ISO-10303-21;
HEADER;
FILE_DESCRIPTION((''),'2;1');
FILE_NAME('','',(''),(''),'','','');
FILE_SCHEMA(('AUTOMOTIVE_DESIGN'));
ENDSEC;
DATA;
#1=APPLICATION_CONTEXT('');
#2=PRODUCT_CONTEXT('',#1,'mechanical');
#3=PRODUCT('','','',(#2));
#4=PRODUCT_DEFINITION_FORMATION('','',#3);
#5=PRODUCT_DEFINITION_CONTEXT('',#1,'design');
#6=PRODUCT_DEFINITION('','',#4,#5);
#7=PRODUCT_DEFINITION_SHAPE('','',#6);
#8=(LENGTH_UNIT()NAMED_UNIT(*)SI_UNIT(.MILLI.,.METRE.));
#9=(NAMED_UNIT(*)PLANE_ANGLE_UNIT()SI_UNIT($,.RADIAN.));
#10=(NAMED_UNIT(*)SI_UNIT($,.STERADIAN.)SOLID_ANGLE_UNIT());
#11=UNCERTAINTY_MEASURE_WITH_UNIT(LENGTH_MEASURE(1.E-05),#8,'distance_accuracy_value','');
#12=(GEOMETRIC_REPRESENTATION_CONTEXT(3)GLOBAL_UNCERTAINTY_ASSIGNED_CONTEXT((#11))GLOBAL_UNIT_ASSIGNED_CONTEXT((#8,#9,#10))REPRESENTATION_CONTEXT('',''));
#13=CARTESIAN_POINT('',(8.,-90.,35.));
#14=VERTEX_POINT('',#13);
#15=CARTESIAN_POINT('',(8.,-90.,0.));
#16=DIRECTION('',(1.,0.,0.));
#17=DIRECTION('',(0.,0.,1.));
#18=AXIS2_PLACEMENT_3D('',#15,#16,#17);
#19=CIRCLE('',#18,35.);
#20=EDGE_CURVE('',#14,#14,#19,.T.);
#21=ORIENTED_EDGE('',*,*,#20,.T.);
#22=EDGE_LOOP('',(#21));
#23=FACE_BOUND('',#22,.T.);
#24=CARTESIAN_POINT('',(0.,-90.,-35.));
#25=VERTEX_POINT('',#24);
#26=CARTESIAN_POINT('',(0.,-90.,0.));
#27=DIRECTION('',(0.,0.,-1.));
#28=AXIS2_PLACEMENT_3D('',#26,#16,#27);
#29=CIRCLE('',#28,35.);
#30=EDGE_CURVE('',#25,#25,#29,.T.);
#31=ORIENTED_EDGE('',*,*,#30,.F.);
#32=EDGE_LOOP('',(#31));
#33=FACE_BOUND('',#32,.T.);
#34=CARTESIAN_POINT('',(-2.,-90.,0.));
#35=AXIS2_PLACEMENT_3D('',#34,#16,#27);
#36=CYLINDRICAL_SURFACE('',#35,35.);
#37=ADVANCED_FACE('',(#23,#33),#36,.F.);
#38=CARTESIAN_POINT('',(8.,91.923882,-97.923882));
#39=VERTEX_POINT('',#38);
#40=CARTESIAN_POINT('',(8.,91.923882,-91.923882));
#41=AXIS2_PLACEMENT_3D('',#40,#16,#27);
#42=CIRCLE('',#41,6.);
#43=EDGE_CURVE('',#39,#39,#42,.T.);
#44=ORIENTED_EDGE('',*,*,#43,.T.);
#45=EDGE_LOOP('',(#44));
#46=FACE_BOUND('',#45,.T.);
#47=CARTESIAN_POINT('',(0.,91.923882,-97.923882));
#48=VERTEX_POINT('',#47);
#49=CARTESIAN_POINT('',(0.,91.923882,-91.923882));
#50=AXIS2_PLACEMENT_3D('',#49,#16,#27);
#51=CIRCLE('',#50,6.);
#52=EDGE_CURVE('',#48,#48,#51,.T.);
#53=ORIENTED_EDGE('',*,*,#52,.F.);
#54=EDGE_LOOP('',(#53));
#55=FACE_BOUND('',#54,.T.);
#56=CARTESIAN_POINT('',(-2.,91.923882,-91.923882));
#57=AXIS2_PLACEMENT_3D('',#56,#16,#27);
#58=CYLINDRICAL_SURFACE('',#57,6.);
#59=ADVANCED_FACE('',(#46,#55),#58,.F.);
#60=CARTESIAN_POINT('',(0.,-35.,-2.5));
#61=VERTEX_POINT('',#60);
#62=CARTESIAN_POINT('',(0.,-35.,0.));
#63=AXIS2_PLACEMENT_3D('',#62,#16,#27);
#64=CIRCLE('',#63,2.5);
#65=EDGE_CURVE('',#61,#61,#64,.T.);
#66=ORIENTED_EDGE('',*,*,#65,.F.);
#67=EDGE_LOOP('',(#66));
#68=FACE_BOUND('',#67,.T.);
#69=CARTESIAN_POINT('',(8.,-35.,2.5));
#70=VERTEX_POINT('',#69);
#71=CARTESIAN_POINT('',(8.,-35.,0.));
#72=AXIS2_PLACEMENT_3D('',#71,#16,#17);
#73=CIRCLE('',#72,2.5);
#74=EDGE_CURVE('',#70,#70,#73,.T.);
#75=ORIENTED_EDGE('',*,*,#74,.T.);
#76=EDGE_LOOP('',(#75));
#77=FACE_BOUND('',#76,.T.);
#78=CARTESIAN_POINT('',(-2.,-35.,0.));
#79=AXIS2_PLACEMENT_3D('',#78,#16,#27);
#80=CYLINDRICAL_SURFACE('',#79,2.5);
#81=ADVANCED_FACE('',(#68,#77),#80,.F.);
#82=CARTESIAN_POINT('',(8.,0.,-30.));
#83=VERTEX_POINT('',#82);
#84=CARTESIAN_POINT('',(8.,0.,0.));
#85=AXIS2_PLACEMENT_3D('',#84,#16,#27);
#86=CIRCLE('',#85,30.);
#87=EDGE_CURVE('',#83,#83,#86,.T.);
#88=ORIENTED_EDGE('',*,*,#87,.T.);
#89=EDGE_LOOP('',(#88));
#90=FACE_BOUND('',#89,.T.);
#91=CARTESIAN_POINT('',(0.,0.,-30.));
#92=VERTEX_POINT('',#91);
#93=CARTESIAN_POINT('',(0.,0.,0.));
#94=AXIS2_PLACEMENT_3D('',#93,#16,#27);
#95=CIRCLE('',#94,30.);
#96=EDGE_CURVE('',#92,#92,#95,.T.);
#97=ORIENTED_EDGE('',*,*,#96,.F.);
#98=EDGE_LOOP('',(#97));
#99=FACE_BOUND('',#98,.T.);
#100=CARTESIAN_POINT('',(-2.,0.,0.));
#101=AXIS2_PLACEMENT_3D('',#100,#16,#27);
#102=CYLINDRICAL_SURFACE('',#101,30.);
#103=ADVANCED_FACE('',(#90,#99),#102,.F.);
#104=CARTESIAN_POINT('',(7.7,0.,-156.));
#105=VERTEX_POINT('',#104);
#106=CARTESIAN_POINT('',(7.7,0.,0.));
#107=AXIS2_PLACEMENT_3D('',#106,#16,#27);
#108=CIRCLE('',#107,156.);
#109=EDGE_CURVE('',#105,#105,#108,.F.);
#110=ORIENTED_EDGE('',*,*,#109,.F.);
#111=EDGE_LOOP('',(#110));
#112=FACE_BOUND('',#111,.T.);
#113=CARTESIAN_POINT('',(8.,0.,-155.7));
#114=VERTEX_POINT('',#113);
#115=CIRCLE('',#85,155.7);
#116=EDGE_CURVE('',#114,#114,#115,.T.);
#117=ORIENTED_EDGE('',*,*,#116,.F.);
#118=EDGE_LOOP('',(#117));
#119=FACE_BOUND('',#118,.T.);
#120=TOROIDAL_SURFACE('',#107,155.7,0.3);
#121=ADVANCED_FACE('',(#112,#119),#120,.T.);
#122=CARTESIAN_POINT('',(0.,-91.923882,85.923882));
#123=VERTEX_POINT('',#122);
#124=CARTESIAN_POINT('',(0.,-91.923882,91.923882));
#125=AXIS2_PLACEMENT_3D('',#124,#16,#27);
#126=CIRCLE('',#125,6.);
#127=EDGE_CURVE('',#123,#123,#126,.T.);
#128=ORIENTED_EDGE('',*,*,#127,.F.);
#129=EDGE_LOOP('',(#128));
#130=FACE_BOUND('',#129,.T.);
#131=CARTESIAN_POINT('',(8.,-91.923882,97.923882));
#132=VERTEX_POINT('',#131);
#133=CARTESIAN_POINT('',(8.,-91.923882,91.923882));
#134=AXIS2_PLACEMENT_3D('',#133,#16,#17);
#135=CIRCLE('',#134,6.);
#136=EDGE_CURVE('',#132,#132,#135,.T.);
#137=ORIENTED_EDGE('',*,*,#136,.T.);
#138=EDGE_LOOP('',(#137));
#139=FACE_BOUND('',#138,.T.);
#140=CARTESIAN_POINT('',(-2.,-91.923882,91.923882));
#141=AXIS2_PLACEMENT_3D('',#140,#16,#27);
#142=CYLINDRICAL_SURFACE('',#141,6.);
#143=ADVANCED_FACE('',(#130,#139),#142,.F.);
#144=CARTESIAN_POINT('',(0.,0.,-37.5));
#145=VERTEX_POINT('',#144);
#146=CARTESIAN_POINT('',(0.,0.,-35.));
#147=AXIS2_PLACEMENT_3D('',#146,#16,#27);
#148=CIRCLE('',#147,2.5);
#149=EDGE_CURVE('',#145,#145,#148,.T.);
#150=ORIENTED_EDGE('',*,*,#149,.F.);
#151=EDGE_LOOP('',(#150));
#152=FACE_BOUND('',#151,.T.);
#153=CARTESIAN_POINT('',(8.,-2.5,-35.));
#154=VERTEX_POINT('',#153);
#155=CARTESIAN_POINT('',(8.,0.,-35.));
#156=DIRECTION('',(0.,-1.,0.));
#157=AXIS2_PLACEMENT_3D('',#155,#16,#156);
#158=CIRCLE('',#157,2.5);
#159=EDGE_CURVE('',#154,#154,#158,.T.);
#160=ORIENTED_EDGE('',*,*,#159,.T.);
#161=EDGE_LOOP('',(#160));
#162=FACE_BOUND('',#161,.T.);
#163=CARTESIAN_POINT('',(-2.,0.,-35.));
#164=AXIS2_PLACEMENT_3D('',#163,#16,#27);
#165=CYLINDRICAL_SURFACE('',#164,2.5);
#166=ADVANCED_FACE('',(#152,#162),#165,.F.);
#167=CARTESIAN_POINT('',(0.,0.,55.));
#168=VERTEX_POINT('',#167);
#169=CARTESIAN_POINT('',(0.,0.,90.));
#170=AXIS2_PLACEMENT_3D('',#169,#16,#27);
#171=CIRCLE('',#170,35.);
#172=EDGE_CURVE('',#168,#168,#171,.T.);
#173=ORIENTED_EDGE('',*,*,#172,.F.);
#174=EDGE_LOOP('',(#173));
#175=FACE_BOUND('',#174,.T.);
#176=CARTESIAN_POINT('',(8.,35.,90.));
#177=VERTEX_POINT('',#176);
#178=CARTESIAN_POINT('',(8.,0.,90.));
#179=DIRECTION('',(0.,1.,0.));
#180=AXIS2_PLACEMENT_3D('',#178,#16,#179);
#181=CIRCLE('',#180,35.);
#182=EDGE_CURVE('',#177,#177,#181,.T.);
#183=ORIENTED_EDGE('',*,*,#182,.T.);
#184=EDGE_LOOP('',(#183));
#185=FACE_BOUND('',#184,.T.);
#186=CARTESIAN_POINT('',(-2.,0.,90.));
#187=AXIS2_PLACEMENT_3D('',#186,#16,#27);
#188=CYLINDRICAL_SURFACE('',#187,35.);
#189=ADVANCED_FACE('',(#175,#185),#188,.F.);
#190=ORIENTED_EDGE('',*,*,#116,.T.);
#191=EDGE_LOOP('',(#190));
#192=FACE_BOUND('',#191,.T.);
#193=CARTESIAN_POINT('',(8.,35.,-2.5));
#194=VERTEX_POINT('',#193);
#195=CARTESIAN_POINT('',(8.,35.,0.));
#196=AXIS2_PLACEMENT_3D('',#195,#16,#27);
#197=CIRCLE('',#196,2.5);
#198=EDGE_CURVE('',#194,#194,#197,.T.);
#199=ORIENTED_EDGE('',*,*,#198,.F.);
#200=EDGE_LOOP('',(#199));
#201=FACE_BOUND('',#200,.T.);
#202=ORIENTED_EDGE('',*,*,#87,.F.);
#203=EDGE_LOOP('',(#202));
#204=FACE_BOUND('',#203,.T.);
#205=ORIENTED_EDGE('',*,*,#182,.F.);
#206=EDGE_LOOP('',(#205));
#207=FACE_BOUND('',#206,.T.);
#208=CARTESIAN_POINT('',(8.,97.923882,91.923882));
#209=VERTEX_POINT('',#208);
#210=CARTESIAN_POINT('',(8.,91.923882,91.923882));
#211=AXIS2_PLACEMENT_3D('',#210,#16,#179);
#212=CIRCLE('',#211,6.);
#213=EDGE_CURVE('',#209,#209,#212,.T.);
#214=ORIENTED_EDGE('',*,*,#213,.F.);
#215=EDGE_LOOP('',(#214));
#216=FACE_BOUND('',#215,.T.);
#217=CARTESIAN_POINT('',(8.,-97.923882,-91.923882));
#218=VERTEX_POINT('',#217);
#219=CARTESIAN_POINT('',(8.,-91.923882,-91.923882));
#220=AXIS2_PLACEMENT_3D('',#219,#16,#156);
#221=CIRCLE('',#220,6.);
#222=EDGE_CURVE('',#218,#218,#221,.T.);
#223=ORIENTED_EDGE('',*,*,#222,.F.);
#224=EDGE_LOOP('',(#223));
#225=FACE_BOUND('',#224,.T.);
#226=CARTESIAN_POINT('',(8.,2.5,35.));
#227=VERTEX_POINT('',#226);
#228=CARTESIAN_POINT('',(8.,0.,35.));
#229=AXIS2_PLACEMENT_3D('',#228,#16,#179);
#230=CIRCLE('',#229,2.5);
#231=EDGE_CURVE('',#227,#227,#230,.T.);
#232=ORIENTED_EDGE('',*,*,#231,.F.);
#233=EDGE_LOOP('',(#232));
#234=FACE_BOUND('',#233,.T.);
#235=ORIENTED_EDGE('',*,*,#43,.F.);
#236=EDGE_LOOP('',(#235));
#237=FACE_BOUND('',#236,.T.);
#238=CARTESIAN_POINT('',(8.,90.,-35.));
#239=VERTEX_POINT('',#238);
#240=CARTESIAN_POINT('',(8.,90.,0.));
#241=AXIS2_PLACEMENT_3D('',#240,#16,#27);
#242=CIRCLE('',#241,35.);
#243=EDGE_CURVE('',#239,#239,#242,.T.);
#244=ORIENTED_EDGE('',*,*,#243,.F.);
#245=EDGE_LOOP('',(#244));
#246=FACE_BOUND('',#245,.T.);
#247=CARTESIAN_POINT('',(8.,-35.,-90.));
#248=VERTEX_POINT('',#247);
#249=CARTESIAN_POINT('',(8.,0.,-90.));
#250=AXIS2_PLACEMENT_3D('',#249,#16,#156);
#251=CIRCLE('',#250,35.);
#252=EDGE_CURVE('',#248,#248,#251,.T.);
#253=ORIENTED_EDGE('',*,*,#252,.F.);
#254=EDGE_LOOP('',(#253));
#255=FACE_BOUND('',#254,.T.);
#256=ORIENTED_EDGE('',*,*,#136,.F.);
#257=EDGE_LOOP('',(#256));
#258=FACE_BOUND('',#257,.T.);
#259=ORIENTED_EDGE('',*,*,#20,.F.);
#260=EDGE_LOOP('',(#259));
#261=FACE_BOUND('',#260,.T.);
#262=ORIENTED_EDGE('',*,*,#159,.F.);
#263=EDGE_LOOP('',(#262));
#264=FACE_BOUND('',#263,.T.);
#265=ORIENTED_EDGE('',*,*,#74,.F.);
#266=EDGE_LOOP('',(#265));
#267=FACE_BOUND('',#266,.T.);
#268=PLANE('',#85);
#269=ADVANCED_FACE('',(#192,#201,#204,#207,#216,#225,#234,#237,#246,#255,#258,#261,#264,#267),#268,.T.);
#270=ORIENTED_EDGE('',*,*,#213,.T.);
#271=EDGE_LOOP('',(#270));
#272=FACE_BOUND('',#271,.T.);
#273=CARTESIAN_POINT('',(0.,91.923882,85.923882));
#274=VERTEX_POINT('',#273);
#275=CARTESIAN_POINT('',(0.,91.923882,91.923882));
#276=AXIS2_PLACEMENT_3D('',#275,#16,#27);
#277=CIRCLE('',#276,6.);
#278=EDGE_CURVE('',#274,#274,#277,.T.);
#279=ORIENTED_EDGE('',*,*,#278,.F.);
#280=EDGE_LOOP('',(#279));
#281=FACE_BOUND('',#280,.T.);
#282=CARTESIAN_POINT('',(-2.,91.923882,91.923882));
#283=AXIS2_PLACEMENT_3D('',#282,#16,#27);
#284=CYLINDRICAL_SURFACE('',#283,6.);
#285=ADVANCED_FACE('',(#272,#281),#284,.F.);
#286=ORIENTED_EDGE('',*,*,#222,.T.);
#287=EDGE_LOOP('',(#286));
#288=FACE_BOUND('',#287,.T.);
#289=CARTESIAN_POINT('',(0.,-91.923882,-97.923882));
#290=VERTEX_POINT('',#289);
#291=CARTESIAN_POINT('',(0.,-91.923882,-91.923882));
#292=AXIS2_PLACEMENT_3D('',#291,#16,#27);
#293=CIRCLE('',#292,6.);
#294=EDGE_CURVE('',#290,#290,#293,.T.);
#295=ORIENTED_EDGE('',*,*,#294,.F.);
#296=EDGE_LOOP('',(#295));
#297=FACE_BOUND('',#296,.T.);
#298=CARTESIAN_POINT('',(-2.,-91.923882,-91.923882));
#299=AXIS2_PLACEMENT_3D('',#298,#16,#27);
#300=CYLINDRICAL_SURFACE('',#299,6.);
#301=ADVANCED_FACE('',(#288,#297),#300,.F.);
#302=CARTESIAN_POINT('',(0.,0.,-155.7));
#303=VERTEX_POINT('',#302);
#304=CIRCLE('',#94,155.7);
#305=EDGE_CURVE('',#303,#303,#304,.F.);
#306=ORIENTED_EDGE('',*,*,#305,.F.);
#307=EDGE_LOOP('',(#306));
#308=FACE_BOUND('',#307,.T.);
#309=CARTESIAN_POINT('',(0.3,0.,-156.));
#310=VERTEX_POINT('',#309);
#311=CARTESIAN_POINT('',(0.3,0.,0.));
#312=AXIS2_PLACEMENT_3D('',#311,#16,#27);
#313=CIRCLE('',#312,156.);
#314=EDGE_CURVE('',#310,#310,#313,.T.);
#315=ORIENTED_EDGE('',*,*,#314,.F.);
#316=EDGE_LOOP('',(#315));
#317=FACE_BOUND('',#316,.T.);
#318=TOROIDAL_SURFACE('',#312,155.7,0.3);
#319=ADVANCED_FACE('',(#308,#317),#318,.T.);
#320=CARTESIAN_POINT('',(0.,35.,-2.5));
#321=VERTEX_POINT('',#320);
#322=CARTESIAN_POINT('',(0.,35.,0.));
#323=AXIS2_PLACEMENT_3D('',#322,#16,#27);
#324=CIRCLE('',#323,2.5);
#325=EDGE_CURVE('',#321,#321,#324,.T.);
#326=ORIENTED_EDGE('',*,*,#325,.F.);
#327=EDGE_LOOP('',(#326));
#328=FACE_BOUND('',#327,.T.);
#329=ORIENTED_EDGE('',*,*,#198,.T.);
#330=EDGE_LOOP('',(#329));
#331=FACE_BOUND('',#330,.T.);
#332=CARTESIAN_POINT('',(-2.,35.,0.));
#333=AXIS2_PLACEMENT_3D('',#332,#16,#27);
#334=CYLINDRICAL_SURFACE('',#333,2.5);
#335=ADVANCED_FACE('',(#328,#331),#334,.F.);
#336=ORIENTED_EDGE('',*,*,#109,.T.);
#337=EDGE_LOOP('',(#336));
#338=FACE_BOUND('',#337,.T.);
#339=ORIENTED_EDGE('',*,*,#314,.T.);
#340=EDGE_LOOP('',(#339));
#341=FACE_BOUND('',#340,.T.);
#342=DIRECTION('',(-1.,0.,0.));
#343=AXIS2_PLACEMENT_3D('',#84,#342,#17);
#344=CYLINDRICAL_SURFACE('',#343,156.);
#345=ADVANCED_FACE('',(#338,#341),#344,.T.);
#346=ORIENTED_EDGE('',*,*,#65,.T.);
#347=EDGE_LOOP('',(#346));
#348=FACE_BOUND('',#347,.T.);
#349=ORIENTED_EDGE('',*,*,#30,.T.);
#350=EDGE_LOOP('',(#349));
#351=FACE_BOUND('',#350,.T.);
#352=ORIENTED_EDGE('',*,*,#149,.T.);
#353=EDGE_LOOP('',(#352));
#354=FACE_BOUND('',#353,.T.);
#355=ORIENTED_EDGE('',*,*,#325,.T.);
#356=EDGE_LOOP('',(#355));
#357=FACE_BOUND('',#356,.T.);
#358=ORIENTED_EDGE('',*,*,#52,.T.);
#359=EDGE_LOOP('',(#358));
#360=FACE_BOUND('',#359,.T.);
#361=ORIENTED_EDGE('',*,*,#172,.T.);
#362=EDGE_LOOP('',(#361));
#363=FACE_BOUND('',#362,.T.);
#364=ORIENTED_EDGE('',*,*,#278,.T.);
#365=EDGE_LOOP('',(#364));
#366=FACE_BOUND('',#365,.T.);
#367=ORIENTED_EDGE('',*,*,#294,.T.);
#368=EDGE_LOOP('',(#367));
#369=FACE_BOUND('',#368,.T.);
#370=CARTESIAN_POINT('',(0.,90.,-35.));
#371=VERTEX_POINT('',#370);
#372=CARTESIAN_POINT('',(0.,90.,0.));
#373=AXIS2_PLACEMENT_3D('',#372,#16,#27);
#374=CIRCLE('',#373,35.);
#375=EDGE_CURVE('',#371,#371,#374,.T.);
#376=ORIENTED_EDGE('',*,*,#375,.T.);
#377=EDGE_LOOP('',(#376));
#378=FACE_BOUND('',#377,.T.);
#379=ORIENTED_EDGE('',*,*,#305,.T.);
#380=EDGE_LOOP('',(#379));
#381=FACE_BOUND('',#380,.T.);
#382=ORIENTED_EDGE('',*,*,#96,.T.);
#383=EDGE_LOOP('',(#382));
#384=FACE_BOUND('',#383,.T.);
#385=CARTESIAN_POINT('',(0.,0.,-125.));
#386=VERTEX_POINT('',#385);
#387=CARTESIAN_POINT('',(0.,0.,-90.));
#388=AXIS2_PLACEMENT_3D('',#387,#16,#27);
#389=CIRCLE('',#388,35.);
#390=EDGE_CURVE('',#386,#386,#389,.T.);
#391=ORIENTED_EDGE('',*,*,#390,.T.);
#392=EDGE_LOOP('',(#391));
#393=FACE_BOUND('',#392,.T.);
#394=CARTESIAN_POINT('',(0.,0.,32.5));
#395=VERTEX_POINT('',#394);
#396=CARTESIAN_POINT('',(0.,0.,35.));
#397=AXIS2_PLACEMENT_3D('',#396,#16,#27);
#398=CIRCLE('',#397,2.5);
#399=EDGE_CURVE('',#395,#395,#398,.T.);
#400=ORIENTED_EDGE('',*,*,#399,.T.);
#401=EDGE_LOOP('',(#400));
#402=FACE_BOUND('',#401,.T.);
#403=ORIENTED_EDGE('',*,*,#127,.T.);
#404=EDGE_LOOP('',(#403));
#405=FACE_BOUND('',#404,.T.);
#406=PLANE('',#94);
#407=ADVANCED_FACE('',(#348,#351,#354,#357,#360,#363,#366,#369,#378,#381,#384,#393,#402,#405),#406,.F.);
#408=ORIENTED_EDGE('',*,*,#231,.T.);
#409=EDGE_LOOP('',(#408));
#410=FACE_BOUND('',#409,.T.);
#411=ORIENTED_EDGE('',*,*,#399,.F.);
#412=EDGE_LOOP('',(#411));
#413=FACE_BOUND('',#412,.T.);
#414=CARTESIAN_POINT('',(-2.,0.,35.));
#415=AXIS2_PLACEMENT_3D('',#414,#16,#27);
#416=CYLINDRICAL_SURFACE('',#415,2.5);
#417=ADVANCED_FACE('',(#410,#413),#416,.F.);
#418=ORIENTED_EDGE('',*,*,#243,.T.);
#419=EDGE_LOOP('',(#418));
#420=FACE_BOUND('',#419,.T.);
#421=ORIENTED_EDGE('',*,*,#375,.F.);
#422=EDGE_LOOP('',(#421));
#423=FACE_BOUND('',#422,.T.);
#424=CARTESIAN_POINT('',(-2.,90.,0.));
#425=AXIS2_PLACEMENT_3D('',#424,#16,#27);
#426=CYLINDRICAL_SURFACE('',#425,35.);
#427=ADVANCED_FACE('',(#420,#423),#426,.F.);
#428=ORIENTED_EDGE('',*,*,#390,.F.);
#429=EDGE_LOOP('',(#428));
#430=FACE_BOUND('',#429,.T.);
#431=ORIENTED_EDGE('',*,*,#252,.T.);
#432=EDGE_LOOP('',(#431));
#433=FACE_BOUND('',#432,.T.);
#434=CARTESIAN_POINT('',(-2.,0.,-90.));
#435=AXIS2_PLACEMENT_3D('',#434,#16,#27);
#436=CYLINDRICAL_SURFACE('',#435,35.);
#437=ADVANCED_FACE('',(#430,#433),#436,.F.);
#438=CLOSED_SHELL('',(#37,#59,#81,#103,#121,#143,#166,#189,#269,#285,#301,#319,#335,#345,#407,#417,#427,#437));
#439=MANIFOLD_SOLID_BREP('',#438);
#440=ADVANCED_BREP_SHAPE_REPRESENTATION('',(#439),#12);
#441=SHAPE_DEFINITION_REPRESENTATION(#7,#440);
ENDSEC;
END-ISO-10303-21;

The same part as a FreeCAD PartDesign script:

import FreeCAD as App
import Part
import Sketcher
from FreeCAD import Vector
Q = App.Units.Quantity


def edges_at(feature, points):
    """Names of the edges that pass closest to the given points."""
    edges = feature.Shape.Edges
    near = lambda p: min(range(len(edges)), key=lambda i: edges[i].distToShape(Part.Vertex(*p))[0])
    return sorted({f"Edge{near(p) + 1}" for p in points})

doc = App.newDocument("Part")
body = doc.addObject("PartDesign::Body", "Body")

# Sketch on YZ plane
sketch1 = body.newObject("Sketcher::SketchObject", "Sketch")
sketch1.AttachmentSupport = (doc.getObject("YZ_Plane"), [""])
sketch1.MapMode = "FlatFace"
sketch1.addGeometry(Part.Circle(Vector(0, 0, 0), Vector(0, 0, 1), 156), False)
sketch1.addConstraint(Sketcher.Constraint("Coincident", 0, 3, -1, 1))
sketch1.addConstraint(Sketcher.Constraint("Diameter", 0, Q("312 mm")))
pad1 = body.newObject("PartDesign::Pad", "Pad")
pad1.Profile = sketch1
pad1.Length = 8

# Sketch on YZ plane
sketch2 = body.newObject("Sketcher::SketchObject", "Sketch001")
sketch2.AttachmentSupport = (doc.getObject("YZ_Plane"), [""])
sketch2.MapMode = "FlatFace"
sketch2.AttachmentOffset = App.Placement(Vector(0, 0, 8), App.Rotation())
sketch2.addGeometry(Part.Circle(Vector(0, 0, 0), Vector(0, 0, 1), 30), False)
sketch2.addConstraint(Sketcher.Constraint("Coincident", 0, 3, -1, 1))
sketch2.addConstraint(Sketcher.Constraint("Diameter", 0, Q("60 mm")))
pocket1 = body.newObject("PartDesign::Pocket", "Pocket")
pocket1.Profile = sketch2
pocket1.Length = 10

# Sketch on YZ plane
sketch3 = body.newObject("Sketcher::SketchObject", "Sketch002")
sketch3.AttachmentSupport = (doc.getObject("YZ_Plane"), [""])
sketch3.MapMode = "FlatFace"
sketch3.AttachmentOffset = App.Placement(Vector(0, 0, 8), App.Rotation())
sketch3.addGeometry(Part.Circle(Vector(90, 0, 0), Vector(0, 0, 1), 35), False)
sketch3.addConstraint(Sketcher.Constraint("PointOnObject", 0, 3, -1))
sketch3.addConstraint(Sketcher.Constraint("Diameter", 0, Q("70 mm")))
sketch3.addConstraint(Sketcher.Constraint("DistanceX", -1, 1, 0, 3, Q("90 mm")))
pocket2 = body.newObject("PartDesign::Pocket", "Pocket001")
pocket2.Profile = sketch3
pocket2.Length = 10
doc.recompute()

polarpattern = body.newObject("PartDesign::PolarPattern", "PolarPattern")
polarpattern.Originals = [pocket2]
polarpattern.Axis = (doc.getObject("X_Axis"), [""])
polarpattern.Angle = 360
polarpattern.Occurrences = 4
body.Tip = polarpattern

# Sketch on YZ plane
sketch4 = body.newObject("Sketcher::SketchObject", "Sketch003")
sketch4.AttachmentSupport = (doc.getObject("YZ_Plane"), [""])
sketch4.MapMode = "FlatFace"
sketch4.AttachmentOffset = App.Placement(Vector(0, 0, 8), App.Rotation())
sketch4.addGeometry(Part.Circle(Vector(92, -92, 0), Vector(0, 0, 1), 6), False)
sketch4.addConstraint(Sketcher.Constraint("Diameter", 0, Q("12 mm")))
sketch4.addConstraint(Sketcher.Constraint("DistanceX", -1, 1, 0, 3, Q("91.923882 mm")))
sketch4.addConstraint(Sketcher.Constraint("DistanceY", 0, 3, -1, 1, Q("91.923882 mm")))
pocket3 = body.newObject("PartDesign::Pocket", "Pocket002")
pocket3.Profile = sketch4
pocket3.Length = 10
doc.recompute()

polarpattern2 = body.newObject("PartDesign::PolarPattern", "PolarPattern001")
polarpattern2.Originals = [pocket3]
polarpattern2.Axis = (doc.getObject("X_Axis"), [""])
polarpattern2.Angle = 360
polarpattern2.Occurrences = 4
body.Tip = polarpattern2

# Sketch on YZ plane
sketch5 = body.newObject("Sketcher::SketchObject", "Sketch004")
sketch5.AttachmentSupport = (doc.getObject("YZ_Plane"), [""])
sketch5.MapMode = "FlatFace"
sketch5.AttachmentOffset = App.Placement(Vector(0, 0, 8), App.Rotation())
sketch5.addGeometry(Part.Circle(Vector(35, 0, 0), Vector(0, 0, 1), 2.5), False)
sketch5.addConstraint(Sketcher.Constraint("PointOnObject", 0, 3, -1))
sketch5.addConstraint(Sketcher.Constraint("Diameter", 0, Q("5 mm")))
sketch5.addConstraint(Sketcher.Constraint("DistanceX", -1, 1, 0, 3, Q("35 mm")))
pocket4 = body.newObject("PartDesign::Pocket", "Pocket003")
pocket4.Profile = sketch5
pocket4.Length = 10
doc.recompute()

polarpattern3 = body.newObject("PartDesign::PolarPattern", "PolarPattern002")
polarpattern3.Originals = [pocket4]
polarpattern3.Axis = (doc.getObject("X_Axis"), [""])
polarpattern3.Angle = 360
polarpattern3.Occurrences = 4
body.Tip = polarpattern3
doc.recompute()

fillet = body.newObject("PartDesign::Fillet", "Fillet")
fillet.Base = (polarpattern3, edges_at(polarpattern3, [(0, 0, 156), (8, 0, 156)]))
fillet.Radius = 0.3

doc.recompute()
